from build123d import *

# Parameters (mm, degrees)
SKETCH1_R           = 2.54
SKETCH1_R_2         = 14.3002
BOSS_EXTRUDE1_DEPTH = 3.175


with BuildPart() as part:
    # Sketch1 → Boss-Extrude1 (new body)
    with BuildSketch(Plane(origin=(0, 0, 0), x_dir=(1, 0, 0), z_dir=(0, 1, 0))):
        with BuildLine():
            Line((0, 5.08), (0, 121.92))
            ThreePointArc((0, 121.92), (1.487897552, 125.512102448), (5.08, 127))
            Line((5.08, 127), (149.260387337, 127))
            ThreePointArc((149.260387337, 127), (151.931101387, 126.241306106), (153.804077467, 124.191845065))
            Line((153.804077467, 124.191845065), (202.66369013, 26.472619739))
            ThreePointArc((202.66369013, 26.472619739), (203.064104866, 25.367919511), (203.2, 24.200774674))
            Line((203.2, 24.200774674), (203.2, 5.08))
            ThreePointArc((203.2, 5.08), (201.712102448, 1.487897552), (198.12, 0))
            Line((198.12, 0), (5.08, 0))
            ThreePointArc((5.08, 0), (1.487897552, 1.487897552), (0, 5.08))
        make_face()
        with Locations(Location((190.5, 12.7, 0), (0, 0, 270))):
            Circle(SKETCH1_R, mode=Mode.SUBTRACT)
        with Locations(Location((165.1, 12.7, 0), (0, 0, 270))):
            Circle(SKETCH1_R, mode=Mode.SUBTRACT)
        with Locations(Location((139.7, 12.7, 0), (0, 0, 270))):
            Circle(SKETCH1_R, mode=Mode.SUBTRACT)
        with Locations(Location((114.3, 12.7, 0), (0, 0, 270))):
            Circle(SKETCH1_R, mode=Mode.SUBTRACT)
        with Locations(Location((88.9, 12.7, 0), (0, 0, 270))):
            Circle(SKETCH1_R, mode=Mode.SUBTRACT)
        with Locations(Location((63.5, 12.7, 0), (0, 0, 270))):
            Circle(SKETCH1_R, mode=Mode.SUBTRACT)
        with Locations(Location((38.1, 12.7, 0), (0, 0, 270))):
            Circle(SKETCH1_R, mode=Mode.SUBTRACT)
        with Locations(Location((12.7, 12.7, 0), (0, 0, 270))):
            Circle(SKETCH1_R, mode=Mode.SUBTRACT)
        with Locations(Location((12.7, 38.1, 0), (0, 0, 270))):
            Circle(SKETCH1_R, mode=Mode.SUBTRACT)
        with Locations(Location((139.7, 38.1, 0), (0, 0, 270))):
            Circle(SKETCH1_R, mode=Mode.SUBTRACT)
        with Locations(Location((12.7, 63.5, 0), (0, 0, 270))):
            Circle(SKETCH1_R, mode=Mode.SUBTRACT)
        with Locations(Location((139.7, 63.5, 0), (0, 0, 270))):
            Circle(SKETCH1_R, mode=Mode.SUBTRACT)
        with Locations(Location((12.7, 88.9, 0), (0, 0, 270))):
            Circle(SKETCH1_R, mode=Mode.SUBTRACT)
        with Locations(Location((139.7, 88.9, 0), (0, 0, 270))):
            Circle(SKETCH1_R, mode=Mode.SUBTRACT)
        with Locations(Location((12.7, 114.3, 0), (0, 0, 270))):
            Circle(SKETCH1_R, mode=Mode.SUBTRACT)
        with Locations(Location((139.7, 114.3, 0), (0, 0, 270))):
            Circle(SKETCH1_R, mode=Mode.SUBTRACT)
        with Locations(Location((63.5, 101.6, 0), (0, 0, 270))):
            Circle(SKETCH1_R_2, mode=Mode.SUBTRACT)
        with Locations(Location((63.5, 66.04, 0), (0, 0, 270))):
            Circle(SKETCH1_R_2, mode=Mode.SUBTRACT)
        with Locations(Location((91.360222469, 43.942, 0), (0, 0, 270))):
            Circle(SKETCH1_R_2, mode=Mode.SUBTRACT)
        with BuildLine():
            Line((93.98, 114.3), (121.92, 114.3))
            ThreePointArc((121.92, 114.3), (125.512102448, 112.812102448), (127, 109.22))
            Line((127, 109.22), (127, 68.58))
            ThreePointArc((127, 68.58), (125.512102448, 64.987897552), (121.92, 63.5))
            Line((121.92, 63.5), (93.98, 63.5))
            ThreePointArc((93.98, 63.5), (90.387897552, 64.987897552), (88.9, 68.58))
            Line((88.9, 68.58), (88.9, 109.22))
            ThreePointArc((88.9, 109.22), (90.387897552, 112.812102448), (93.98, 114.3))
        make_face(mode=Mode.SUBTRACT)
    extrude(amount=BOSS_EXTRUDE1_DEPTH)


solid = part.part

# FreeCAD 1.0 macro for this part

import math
import FreeCAD as App
import Part
import Sketcher

V = App.Vector
Q = App.Units.Quantity

doc = App.newDocument("Part")
body = doc.addObject("PartDesign::Body", "Body")

# Sketch on XZ plane
sketch1 = body.newObject("Sketcher::SketchObject", "Sketch")
sketch1.AttachmentSupport = (doc.getObject("XZ_Plane"), [""])
sketch1.MapMode = "FlatFace"
sketch1.addGeometry([
    Part.LineSegment(V(0, -121.92, 0), V(0, -5.08, 0)),  # 0
    Part.ArcOfCircle(Part.Circle(V(5.08, -5.08, 0), V(0, 0, 1), 5.08), math.radians(90), math.radians(180)),  # 1
    Part.LineSegment(V(5.08, 0, 0), V(198.12, 0, 0)),  # 2
    Part.ArcOfCircle(Part.Circle(V(198.12, -5.08, 0), V(0, 0, 1), 5.08), math.radians(0), math.radians(90)),  # 3
    Part.LineSegment(V(203.2, -5.08, 0), V(203.2, -24.200775, 0)),  # 4
    Part.ArcOfCircle(Part.Circle(V(198.12, -24.200775, 0), V(0, 0, 1), 5.08), math.radians(-26.565051), math.radians(0)),  # 5
    Part.LineSegment(V(202.66369, -26.47262, 0), V(153.804077, -124.191845, 0)),  # 6
    Part.ArcOfCircle(Part.Circle(V(149.260387, -121.92, 0), V(0, 0, 1), 5.08), math.radians(-90), math.radians(-26.565051)),  # 7
    Part.LineSegment(V(149.260387, -127, 0), V(5.08, -127, 0)),  # 8
    Part.ArcOfCircle(Part.Circle(V(5.08, -121.92, 0), V(0, 0, 1), 5.08), math.radians(-180), math.radians(-90)),  # 9
    Part.Circle(V(190.5, -12.7, 0), V(0, 0, 1), 2.54),  # 10
    Part.Circle(V(165.1, -12.7, 0), V(0, 0, 1), 2.54),  # 11
    Part.Circle(V(139.7, -12.7, 0), V(0, 0, 1), 2.54),  # 12
    Part.Circle(V(114.3, -12.7, 0), V(0, 0, 1), 2.54),  # 13
    Part.Circle(V(139.7, -38.1, 0), V(0, 0, 1), 2.54),  # 14
    Part.Circle(V(139.7, -63.5, 0), V(0, 0, 1), 2.54),  # 15
    Part.Circle(V(88.9, -12.7, 0), V(0, 0, 1), 2.54),  # 16
    Part.Circle(V(63.5, -12.7, 0), V(0, 0, 1), 2.54),  # 17
    Part.Circle(V(38.1, -12.7, 0), V(0, 0, 1), 2.54),  # 18
    Part.Circle(V(12.7, -12.7, 0), V(0, 0, 1), 2.54),  # 19
    Part.Circle(V(91.360222, -43.942, 0), V(0, 0, 1), 14.3002),  # 20
    Part.Circle(V(12.7, -38.1, 0), V(0, 0, 1), 2.54),  # 21
    Part.Circle(V(12.7, -63.5, 0), V(0, 0, 1), 2.54),  # 22
    Part.Circle(V(139.7, -88.9, 0), V(0, 0, 1), 2.54),  # 23
    Part.LineSegment(V(93.98, -114.3, 0), V(121.92, -114.3, 0)),  # 24
    Part.ArcOfCircle(Part.Circle(V(121.92, -109.22, 0), V(0, 0, 1), 5.08), math.radians(-90), math.radians(0)),  # 25
    Part.LineSegment(V(127, -109.22, 0), V(127, -68.58, 0)),  # 26
    Part.ArcOfCircle(Part.Circle(V(121.92, -68.58, 0), V(0, 0, 1), 5.08), math.radians(0), math.radians(90)),  # 27
    Part.LineSegment(V(121.92, -63.5, 0), V(93.98, -63.5, 0)),  # 28
    Part.ArcOfCircle(Part.Circle(V(93.98, -68.58, 0), V(0, 0, 1), 5.08), math.radians(90), math.radians(180)),  # 29
    Part.LineSegment(V(88.9, -68.58, 0), V(88.9, -109.22, 0)),  # 30
    Part.ArcOfCircle(Part.Circle(V(93.98, -109.22, 0), V(0, 0, 1), 5.08), math.radians(-180), math.radians(-90)),  # 31
    Part.Circle(V(139.7, -114.3, 0), V(0, 0, 1), 2.54),  # 32
    Part.Circle(V(63.5, -66.04, 0), V(0, 0, 1), 14.3002),  # 33
    Part.Circle(V(12.7, -88.9, 0), V(0, 0, 1), 2.54),  # 34
    Part.Circle(V(63.5, -101.6, 0), V(0, 0, 1), 14.3002),  # 35
    Part.Circle(V(12.7, -114.3, 0), V(0, 0, 1), 2.54),  # 36
], False)
sketch1.addConstraint([
    Sketcher.Constraint("Tangent", 0, 2, 1, 2),
    Sketcher.Constraint("Tangent", 1, 1, 2, 1),
    Sketcher.Constraint("Tangent", 2, 2, 3, 2),
    Sketcher.Constraint("Tangent", 3, 1, 4, 1),
    Sketcher.Constraint("Tangent", 4, 2, 5, 2),
    Sketcher.Constraint("Tangent", 5, 1, 6, 1),
    Sketcher.Constraint("Tangent", 6, 2, 7, 2),
    Sketcher.Constraint("Tangent", 7, 1, 8, 1),
    Sketcher.Constraint("Tangent", 8, 2, 9, 2),
    Sketcher.Constraint("Tangent", 9, 1, 0, 1),
    Sketcher.Constraint("Tangent", 24, 2, 25, 1),
    Sketcher.Constraint("Tangent", 25, 2, 26, 1),
    Sketcher.Constraint("Tangent", 26, 2, 27, 1),
    Sketcher.Constraint("Tangent", 27, 2, 28, 1),
    Sketcher.Constraint("Tangent", 28, 2, 29, 1),
    Sketcher.Constraint("Tangent", 29, 2, 30, 1),
    Sketcher.Constraint("Tangent", 30, 2, 31, 1),
    Sketcher.Constraint("Tangent", 31, 2, 24, 1),
    Sketcher.Constraint("Vertical", 0),
    Sketcher.Constraint("Horizontal", 2),
    Sketcher.Constraint("Vertical", 4),
    Sketcher.Constraint("Horizontal", 8),
    Sketcher.Constraint("Horizontal", 24),
    Sketcher.Constraint("Vertical", 26),
    Sketcher.Constraint("Horizontal", 28),
    Sketcher.Constraint("Vertical", 30),
    Sketcher.Constraint("Equal", 1, 3),
    Sketcher.Constraint("Equal", 3, 5),
    Sketcher.Constraint("Equal", 5, 7),
    Sketcher.Constraint("Equal", 7, 9),
    Sketcher.Constraint("Equal", 10, 11),
    Sketcher.Constraint("Equal", 11, 12),
    Sketcher.Constraint("Equal", 12, 13),
    Sketcher.Constraint("Equal", 13, 14),
    Sketcher.Constraint("Equal", 14, 15),
    Sketcher.Constraint("Equal", 15, 16),
    Sketcher.Constraint("Equal", 16, 17),
    Sketcher.Constraint("Equal", 17, 18),
    Sketcher.Constraint("Equal", 18, 19),
    Sketcher.Constraint("Equal", 19, 21),
    Sketcher.Constraint("Equal", 21, 22),
    Sketcher.Constraint("Equal", 22, 23),
    Sketcher.Constraint("Equal", 9, 25),
    Sketcher.Constraint("Equal", 25, 27),
    Sketcher.Constraint("Equal", 27, 29),
    Sketcher.Constraint("Equal", 29, 31),
    Sketcher.Constraint("Equal", 23, 32),
    Sketcher.Constraint("Equal", 20, 33),
    Sketcher.Constraint("Equal", 32, 34),
    Sketcher.Constraint("Equal", 33, 35),
    Sketcher.Constraint("Equal", 34, 36),
    Sketcher.Constraint("PointOnObject", 0, 2, -2),
    Sketcher.Constraint("PointOnObject", 1, 1, -1),
    Sketcher.Constraint("Horizontal", 10, 3, 11, 3),
    Sketcher.Constraint("Horizontal", 11, 3, 12, 3),
    Sketcher.Constraint("Horizontal", 12, 3, 13, 3),
    Sketcher.Constraint("Horizontal", 13, 3, 16, 3),
    Sketcher.Constraint("Horizontal", 16, 3, 17, 3),
    Sketcher.Constraint("Horizontal", 17, 3, 18, 3),
    Sketcher.Constraint("Horizontal", 18, 3, 19, 3),
    Sketcher.Constraint("Horizontal", 14, 3, 21, 3),
    Sketcher.Constraint("Horizontal", 15, 3, 22, 3),
    Sketcher.Constraint("Horizontal", 23, 3, 34, 3),
    Sketcher.Constraint("Horizontal", 32, 3, 36, 3),
    Sketcher.Constraint("Horizontal", 36, 3, 24, 2),
    Sketcher.Constraint("Horizontal", 22, 3, 27, 2),
    Sketcher.Constraint("Vertical", 12, 3, 14, 3),
    Sketcher.Constraint("Vertical", 14, 3, 15, 3),
    Sketcher.Constraint("Vertical", 19, 3, 21, 3),
    Sketcher.Constraint("Vertical", 21, 3, 22, 3),
    Sketcher.Constraint("Vertical", 15, 3, 23, 3),
    Sketcher.Constraint("Vertical", 23, 3, 32, 3),
    Sketcher.Constraint("Vertical", 17, 3, 33, 3),
    Sketcher.Constraint("Vertical", 22, 3, 34, 3),
    Sketcher.Constraint("Vertical", 33, 3, 35, 3),
    Sketcher.Constraint("Vertical", 34, 3, 36, 3),
    Sketcher.Constraint("Vertical", 16, 3, 29, 2),
    Sketcher.Constraint("Diameter", 10, Q("0.2 in")),
    Sketcher.Constraint("Radius", 1, Q("0.2 in")),
    Sketcher.Constraint("Diameter", 20, Q("1.126 in")),
    Sketcher.Constraint("DistanceX", 2, 1, 2, 2, Q("7.6 in")),
    Sketcher.Constraint("DistanceX", 24, 1, 24, 2, Q("1.1 in")),
    Sketcher.Constraint("DistanceY", 0, 1, 0, 2, Q("4.6 in")),
    Sketcher.Constraint("DistanceY", 26, 1, 26, 2, Q("1.6 in")),
    Sketcher.Constraint("DistanceY", 35, 3, -1, 1, Q("4 in")),
    Sketcher.Constraint("DistanceX", -1, 1, 25, 2, Q("5 in")),
    Sketcher.Constraint("DistanceX", 11, 3, 10, 3, Q("1 in")),
    Sketcher.Constraint("DistanceX", 12, 3, 11, 3, Q("1 in")),
    Sketcher.Constraint("DistanceX", 13, 3, 12, 3, Q("1 in")),
    Sketcher.Constraint("DistanceY", 14, 3, 12, 3, Q("1 in")),
    Sketcher.Constraint("DistanceY", 15, 3, 14, 3, Q("1 in")),
    Sketcher.Constraint("DistanceX", 16, 3, 13, 3, Q("1 in")),
    Sketcher.Constraint("DistanceX", 17, 3, 16, 3, Q("1 in")),
    Sketcher.Constraint("DistanceX", 18, 3, 17, 3, Q("1 in")),
    Sketcher.Constraint("DistanceX", 19, 3, 18, 3, Q("1 in")),
    Sketcher.Constraint("DistanceY", 23, 3, 15, 3, Q("1 in")),
    Sketcher.Constraint("DistanceY", 10, 3, -1, 1, Q("0.5 in")),
    Sketcher.Constraint("DistanceY", 33, 3, -1, 1, Q("2.6 in")),
    Sketcher.Constraint("DistanceY", 20, 3, -1, 1, Q("1.73 in")),
    Sketcher.Constraint("DistanceX", 8, 2, 8, 1, Q("144.180387 mm")),
    Sketcher.Constraint("DistanceY", 4, 2, 4, 1, Q("19.120775 mm")),
    Sketcher.Constraint("DistanceX", -1, 1, 20, 3, Q("91.360222 mm")),
])
pad1 = body.newObject("PartDesign::Pad", "Pad")
pad1.Profile = sketch1
pad1.Length = Q("0.125 in")
pad1.Reversed = True

doc.recompute()
